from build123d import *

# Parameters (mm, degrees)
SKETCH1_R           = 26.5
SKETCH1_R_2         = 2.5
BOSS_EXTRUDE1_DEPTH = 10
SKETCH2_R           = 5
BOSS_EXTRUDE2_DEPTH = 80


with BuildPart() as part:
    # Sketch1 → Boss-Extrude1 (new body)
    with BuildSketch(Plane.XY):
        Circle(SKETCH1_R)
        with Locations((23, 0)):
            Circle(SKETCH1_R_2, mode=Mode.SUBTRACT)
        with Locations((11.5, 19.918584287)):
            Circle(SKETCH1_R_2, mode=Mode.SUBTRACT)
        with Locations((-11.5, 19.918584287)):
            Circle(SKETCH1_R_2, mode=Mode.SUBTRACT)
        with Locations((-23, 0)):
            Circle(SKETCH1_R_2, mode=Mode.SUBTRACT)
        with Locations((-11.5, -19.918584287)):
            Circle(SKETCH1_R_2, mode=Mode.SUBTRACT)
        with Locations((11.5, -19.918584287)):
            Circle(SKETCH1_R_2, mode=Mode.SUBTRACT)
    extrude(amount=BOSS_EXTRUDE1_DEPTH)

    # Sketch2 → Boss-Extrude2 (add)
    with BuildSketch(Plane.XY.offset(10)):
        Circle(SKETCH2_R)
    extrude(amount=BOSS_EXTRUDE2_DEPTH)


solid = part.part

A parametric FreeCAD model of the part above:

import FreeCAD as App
import Part
import Sketcher
from FreeCAD import Vector
Q = App.Units.Quantity

doc = App.newDocument("Part")
params = doc.addObject("Spreadsheet::Sheet", "Params")
for row, (alias, value) in enumerate([
    ("sketch1_diameter", "53 mm"),
    ("sketch1_diameter2", "5 mm"),
    ("pad1_length", "10 mm"),
    ("sketch2_diameter", "10 mm"),
    ("pad2_length", "80 mm"),
], start=1):
    params.set(f"A{row}", alias)
    params.set(f"B{row}", "=" + value)
    params.setAlias(f"B{row}", alias)

body = doc.addObject("PartDesign::Body", "Body")

sketch1 = body.newObject("Sketcher::SketchObject", "Sketch")
sketch1.AttachmentSupport = (doc.getObject("XY_Plane"), [""])
sketch1.MapMode = "FlatFace"
sketch1.addGeometry(Part.Circle(Vector(0, 0, 0), Vector(0, 0, 1), 26.5), False)
sketch1.addGeometry(Part.Circle(Vector(-11.5, -19.9, 0), Vector(0, 0, 1), 2.5), False)
sketch1.addGeometry(Part.Circle(Vector(11.5, -19.9, 0), Vector(0, 0, 1), 2.5), False)
sketch1.addGeometry(Part.Circle(Vector(-23, 0, 0), Vector(0, 0, 1), 2.5), False)
sketch1.addGeometry(Part.Circle(Vector(-11.5, 19.9, 0), Vector(0, 0, 1), 2.5), False)
sketch1.addGeometry(Part.Circle(Vector(23, 0, 0), Vector(0, 0, 1), 2.5), False)
sketch1.addGeometry(Part.Circle(Vector(11.5, 19.9, 0), Vector(0, 0, 1), 2.5), False)
sketch1.addConstraint(Sketcher.Constraint("Coincident", 0, 3, -1, 1))
sketch1.addConstraint(Sketcher.Constraint("Equal", 1, 2))
sketch1.addConstraint(Sketcher.Constraint("Equal", 2, 3))
sketch1.addConstraint(Sketcher.Constraint("Equal", 3, 4))
sketch1.addConstraint(Sketcher.Constraint("Equal", 4, 5))
sketch1.addConstraint(Sketcher.Constraint("Equal", 5, 6))
sketch1.addConstraint(Sketcher.Constraint("Symmetric", 2, 3, 4, 3, -1, 1))
sketch1.addConstraint(Sketcher.Constraint("Symmetric", 3, 3, 5, 3, -1, 1))
sketch1.addConstraint(Sketcher.Constraint("Symmetric", 1, 3, 6, 3, -1, 1))
sketch1.addConstraint(Sketcher.Constraint("Symmetric", 1, 3, 2, 3, -2))
sketch1.addConstraint(Sketcher.Constraint("PointOnObject", 3, 3, -1))
sketch1.addConstraint(Sketcher.Constraint("Diameter", 0, Q("53 mm")))
sketch1.addConstraint(Sketcher.Constraint("Diameter", 1, Q("5 mm")))
sketch1.addConstraint(Sketcher.Constraint("DistanceX", 3, 3, -1, 1, Q("23 mm")))
sketch1.addConstraint(Sketcher.Constraint("DistanceX", 1, 3, 2, 3, Q("23 mm")))
sketch1.addConstraint(Sketcher.Constraint("DistanceY", 1, 3, 4, 3, Q("39.837169 mm")))
sketch1.setExpression("Constraints[11]", "Params.sketch1_diameter")
sketch1.setExpression("Constraints[12]", "Params.sketch1_diameter2")
pad1 = body.newObject("PartDesign::Pad", "Pad")
pad1.Profile = sketch1
pad1.setExpression("Length", "Params.pad1_length")

sketch2 = body.newObject("Sketcher::SketchObject", "Sketch001")
sketch2.AttachmentSupport = (doc.getObject("XY_Plane"), [""])
sketch2.MapMode = "FlatFace"
sketch2.AttachmentOffset = App.Placement(Vector(0, 0, 10), App.Rotation())
sketch2.addGeometry(Part.Circle(Vector(0, 0, 0), Vector(0, 0, 1), 5), False)
sketch2.addConstraint(Sketcher.Constraint("Coincident", 0, 3, -1, 1))
sketch2.addConstraint(Sketcher.Constraint("Diameter", 0, Q("10 mm")))
sketch2.setExpression("Constraints[1]", "Params.sketch2_diameter")
pad2 = body.newObject("PartDesign::Pad", "Pad001")
pad2.Profile = sketch2
pad2.setExpression("Length", "Params.pad2_length")

doc.recompute()
